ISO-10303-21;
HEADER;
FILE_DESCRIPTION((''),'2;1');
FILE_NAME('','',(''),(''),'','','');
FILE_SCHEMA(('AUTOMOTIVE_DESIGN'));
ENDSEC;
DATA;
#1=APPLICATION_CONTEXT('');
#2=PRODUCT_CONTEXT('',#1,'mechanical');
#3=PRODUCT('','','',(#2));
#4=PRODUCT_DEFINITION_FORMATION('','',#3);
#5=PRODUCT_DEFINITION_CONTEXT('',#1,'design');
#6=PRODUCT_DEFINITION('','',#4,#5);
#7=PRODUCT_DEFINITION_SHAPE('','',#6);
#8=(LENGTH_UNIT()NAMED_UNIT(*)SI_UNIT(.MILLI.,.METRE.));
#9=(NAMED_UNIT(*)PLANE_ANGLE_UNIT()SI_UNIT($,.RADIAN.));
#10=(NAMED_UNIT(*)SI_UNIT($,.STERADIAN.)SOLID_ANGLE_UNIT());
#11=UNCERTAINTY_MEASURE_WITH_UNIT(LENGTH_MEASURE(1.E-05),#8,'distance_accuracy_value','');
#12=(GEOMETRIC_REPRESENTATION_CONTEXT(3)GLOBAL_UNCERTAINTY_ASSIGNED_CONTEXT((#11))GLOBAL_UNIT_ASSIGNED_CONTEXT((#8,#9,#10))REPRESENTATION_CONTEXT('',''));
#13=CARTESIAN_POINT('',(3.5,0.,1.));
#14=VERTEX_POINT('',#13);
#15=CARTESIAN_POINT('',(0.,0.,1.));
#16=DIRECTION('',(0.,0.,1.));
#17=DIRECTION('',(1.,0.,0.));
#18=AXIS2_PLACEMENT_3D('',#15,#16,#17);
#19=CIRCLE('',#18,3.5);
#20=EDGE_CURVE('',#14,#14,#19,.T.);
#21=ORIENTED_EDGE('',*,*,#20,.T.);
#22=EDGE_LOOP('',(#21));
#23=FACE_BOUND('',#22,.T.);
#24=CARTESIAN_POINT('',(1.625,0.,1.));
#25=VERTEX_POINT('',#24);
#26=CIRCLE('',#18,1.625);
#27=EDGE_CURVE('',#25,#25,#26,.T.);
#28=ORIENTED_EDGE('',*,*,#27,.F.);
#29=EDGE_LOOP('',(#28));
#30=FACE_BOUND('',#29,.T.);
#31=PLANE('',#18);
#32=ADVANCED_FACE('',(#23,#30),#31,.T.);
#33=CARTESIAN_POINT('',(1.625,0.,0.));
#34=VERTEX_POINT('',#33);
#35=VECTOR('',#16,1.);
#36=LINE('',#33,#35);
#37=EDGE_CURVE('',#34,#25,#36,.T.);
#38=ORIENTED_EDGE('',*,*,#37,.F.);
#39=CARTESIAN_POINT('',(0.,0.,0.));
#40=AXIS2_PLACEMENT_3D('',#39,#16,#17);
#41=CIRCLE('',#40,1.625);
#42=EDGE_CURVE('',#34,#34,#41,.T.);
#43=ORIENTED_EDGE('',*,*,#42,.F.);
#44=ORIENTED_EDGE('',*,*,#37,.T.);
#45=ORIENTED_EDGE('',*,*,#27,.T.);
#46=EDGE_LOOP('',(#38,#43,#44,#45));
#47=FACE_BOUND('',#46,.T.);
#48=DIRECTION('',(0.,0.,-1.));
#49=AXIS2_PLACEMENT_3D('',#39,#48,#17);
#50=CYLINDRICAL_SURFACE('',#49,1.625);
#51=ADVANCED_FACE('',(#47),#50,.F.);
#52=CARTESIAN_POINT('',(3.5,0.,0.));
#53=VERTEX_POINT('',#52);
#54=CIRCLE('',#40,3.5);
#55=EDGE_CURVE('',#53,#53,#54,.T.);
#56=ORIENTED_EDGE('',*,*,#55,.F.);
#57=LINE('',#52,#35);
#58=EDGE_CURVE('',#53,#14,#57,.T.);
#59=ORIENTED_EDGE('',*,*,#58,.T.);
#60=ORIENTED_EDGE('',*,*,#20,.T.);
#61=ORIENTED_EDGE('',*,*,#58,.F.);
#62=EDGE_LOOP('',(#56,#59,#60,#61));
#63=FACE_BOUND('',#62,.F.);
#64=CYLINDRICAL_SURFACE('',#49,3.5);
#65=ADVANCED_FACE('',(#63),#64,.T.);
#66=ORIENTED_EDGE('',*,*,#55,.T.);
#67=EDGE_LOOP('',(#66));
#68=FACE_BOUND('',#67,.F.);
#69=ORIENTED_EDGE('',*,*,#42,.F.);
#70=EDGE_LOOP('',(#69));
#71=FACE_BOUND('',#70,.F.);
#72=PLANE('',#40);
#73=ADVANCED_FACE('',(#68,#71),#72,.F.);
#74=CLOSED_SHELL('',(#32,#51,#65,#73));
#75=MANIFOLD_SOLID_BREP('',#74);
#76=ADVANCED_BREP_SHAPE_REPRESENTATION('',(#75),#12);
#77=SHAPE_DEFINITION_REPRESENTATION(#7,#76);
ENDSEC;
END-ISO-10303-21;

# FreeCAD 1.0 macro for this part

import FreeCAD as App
import Part
import Sketcher
from FreeCAD import Vector

doc = App.newDocument("Part")
body = doc.addObject("PartDesign::Body", "Body")

# Sketch on XY plane
sketch1 = body.newObject("Sketcher::SketchObject", "Sketch")
sketch1.AttachmentSupport = (doc.getObject("XY_Plane"), [""])
sketch1.MapMode = "FlatFace"
sketch1.addGeometry(Part.Circle(Vector(0, 0, 0), Vector(0, 0, 1), 3.5), False)
sketch1.addGeometry(Part.Circle(Vector(0, 0, 0), Vector(0, 0, 1), 1.6), False)
sketch1.addConstraint(Sketcher.Constraint("Coincident", 0, 3, -1, 1))
sketch1.addConstraint(Sketcher.Constraint("Coincident", 1, 3, -1, 1))
sketch1.addConstraint(Sketcher.Constraint("Diameter", 0, 7.0))
sketch1.addConstraint(Sketcher.Constraint("Diameter", 1, 3.25))
pad1 = body.newObject("PartDesign::Pad", "Pad")
pad1.Profile = sketch1
pad1.Length = 1

doc.recompute()
